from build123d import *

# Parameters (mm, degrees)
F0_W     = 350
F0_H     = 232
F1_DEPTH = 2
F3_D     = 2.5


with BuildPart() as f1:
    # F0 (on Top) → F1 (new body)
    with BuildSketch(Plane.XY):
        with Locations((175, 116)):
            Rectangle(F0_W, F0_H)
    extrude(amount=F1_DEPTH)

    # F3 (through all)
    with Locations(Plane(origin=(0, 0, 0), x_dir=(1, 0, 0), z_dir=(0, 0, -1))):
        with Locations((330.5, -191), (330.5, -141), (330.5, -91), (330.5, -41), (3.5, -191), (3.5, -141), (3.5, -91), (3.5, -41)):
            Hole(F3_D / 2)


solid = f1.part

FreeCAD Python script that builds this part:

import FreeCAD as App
import Part
import Sketcher

V = App.Vector

doc = App.newDocument("Part")
params = doc.addObject("Spreadsheet::Sheet", "Params")
for row, (alias, value) in enumerate([
    ("sketch1_width", "350 mm"),
    ("sketch1_height", "232 mm"),
    ("pad1_length", "2 mm"),
    ("sketch2_diameter", "2.5 mm"),
    ("hole_diameter", "2.5 mm"),
], start=1):
    params.set(f"A{row}", alias)
    params.set(f"B{row}", "=" + value)
    params.setAlias(f"B{row}", alias)

body = doc.addObject("PartDesign::Body", "Body")

# Sketch on XY plane
sketch1 = body.newObject("Sketcher::SketchObject", "Sketch")
sketch1.AttachmentSupport = (doc.getObject("XY_Plane"), [""])
sketch1.MapMode = "FlatFace"
sketch1.addGeometry(Part.LineSegment(V(0, 232, 0), V(0, 0, 0)), False)
sketch1.addGeometry(Part.LineSegment(V(0, 0, 0), V(350, 0, 0)), False)
sketch1.addGeometry(Part.LineSegment(V(350, 0, 0), V(350, 232, 0)), False)
sketch1.addGeometry(Part.LineSegment(V(350, 232, 0), V(0, 232, 0)), False)
sketch1.addConstraint(Sketcher.Constraint("Coincident", 0, 2, 1, 1))
sketch1.addConstraint(Sketcher.Constraint("Coincident", 1, 2, 2, 1))
sketch1.addConstraint(Sketcher.Constraint("Coincident", 2, 2, 3, 1))
sketch1.addConstraint(Sketcher.Constraint("Coincident", 3, 2, 0, 1))
sketch1.addConstraint(Sketcher.Constraint("Vertical", 0))
sketch1.addConstraint(Sketcher.Constraint("Horizontal", 1))
sketch1.addConstraint(Sketcher.Constraint("Vertical", 2))
sketch1.addConstraint(Sketcher.Constraint("Horizontal", 3))
sketch1.addConstraint(Sketcher.Constraint("Coincident", 0, 2, -1, 1))
sketch1.addConstraint(Sketcher.Constraint("DistanceX", 1, 1, 1, 2, 350.0))
sketch1.addConstraint(Sketcher.Constraint("DistanceY", 0, 2, 0, 1, 232.0))
sketch1.setExpression("Constraints[9]", "Params.sketch1_width")
sketch1.setExpression("Constraints[10]", "Params.sketch1_height")
pad1 = body.newObject("PartDesign::Pad", "Pad")
pad1.Profile = sketch1
pad1.setExpression("Length", "Params.pad1_length")

# Sketch on XY plane
sketch2 = body.newObject("Sketcher::SketchObject", "Sketch001")
sketch2.AttachmentSupport = (doc.getObject("XY_Plane"), [""])
sketch2.MapMode = "FlatFace"
sketch2.addGeometry(Part.Circle(V(330.5, 191, 0), V(0, 0, 1), 1.2), False)
sketch2.addGeometry(Part.Circle(V(330.5, 141, 0), V(0, 0, 1), 1.2), False)
sketch2.addGeometry(Part.Circle(V(330.5, 91, 0), V(0, 0, 1), 1.2), False)
sketch2.addGeometry(Part.Circle(V(330.5, 41, 0), V(0, 0, 1), 1.2), False)
sketch2.addGeometry(Part.Circle(V(3.5, 191, 0), V(0, 0, 1), 1.2), False)
sketch2.addGeometry(Part.Circle(V(3.5, 141, 0), V(0, 0, 1), 1.2), False)
sketch2.addGeometry(Part.Circle(V(3.5, 91, 0), V(0, 0, 1), 1.2), False)
sketch2.addGeometry(Part.Circle(V(3.5, 41, 0), V(0, 0, 1), 1.2), False)
sketch2.addConstraint(Sketcher.Constraint("Equal", 0, 1))
sketch2.addConstraint(Sketcher.Constraint("Equal", 1, 2))
sketch2.addConstraint(Sketcher.Constraint("Equal", 2, 3))
sketch2.addConstraint(Sketcher.Constraint("Equal", 3, 4))
sketch2.addConstraint(Sketcher.Constraint("Equal", 4, 5))
sketch2.addConstraint(Sketcher.Constraint("Equal", 5, 6))
sketch2.addConstraint(Sketcher.Constraint("Equal", 6, 7))
sketch2.addConstraint(Sketcher.Constraint("Horizontal", 0, 3, 4, 3))
sketch2.addConstraint(Sketcher.Constraint("Horizontal", 1, 3, 5, 3))
sketch2.addConstraint(Sketcher.Constraint("Horizontal", 2, 3, 6, 3))
sketch2.addConstraint(Sketcher.Constraint("Horizontal", 3, 3, 7, 3))
sketch2.addConstraint(Sketcher.Constraint("Vertical", 0, 3, 1, 3))
sketch2.addConstraint(Sketcher.Constraint("Vertical", 1, 3, 2, 3))
sketch2.addConstraint(Sketcher.Constraint("Vertical", 2, 3, 3, 3))
sketch2.addConstraint(Sketcher.Constraint("Vertical", 4, 3, 5, 3))
sketch2.addConstraint(Sketcher.Constraint("Vertical", 5, 3, 6, 3))
sketch2.addConstraint(Sketcher.Constraint("Vertical", 6, 3, 7, 3))
sketch2.addConstraint(Sketcher.Constraint("Diameter", 0, 2.5))
sketch2.addConstraint(Sketcher.Constraint("DistanceY", -1, 1, 0, 3, 191.0))
sketch2.addConstraint(Sketcher.Constraint("DistanceY", -1, 1, 1, 3, 141.0))
sketch2.addConstraint(Sketcher.Constraint("DistanceY", -1, 1, 2, 3, 91.0))
sketch2.addConstraint(Sketcher.Constraint("DistanceY", -1, 1, 3, 3, 41.0))
sketch2.addConstraint(Sketcher.Constraint("DistanceX", 4, 3, 0, 3, 327.0))
sketch2.addConstraint(Sketcher.Constraint("DistanceX", -1, 1, 0, 3, 330.5))
sketch2.setExpression("Constraints[17]", "Params.sketch2_diameter")
doc.recompute()
hole = body.newObject("PartDesign::Hole", "Hole")
hole.Profile = sketch2
hole.ThreadType = "None"
hole.setExpression("Diameter", "Params.hole_diameter")
hole.DepthType = "ThroughAll"
hole.Reversed = True

doc.recompute()
